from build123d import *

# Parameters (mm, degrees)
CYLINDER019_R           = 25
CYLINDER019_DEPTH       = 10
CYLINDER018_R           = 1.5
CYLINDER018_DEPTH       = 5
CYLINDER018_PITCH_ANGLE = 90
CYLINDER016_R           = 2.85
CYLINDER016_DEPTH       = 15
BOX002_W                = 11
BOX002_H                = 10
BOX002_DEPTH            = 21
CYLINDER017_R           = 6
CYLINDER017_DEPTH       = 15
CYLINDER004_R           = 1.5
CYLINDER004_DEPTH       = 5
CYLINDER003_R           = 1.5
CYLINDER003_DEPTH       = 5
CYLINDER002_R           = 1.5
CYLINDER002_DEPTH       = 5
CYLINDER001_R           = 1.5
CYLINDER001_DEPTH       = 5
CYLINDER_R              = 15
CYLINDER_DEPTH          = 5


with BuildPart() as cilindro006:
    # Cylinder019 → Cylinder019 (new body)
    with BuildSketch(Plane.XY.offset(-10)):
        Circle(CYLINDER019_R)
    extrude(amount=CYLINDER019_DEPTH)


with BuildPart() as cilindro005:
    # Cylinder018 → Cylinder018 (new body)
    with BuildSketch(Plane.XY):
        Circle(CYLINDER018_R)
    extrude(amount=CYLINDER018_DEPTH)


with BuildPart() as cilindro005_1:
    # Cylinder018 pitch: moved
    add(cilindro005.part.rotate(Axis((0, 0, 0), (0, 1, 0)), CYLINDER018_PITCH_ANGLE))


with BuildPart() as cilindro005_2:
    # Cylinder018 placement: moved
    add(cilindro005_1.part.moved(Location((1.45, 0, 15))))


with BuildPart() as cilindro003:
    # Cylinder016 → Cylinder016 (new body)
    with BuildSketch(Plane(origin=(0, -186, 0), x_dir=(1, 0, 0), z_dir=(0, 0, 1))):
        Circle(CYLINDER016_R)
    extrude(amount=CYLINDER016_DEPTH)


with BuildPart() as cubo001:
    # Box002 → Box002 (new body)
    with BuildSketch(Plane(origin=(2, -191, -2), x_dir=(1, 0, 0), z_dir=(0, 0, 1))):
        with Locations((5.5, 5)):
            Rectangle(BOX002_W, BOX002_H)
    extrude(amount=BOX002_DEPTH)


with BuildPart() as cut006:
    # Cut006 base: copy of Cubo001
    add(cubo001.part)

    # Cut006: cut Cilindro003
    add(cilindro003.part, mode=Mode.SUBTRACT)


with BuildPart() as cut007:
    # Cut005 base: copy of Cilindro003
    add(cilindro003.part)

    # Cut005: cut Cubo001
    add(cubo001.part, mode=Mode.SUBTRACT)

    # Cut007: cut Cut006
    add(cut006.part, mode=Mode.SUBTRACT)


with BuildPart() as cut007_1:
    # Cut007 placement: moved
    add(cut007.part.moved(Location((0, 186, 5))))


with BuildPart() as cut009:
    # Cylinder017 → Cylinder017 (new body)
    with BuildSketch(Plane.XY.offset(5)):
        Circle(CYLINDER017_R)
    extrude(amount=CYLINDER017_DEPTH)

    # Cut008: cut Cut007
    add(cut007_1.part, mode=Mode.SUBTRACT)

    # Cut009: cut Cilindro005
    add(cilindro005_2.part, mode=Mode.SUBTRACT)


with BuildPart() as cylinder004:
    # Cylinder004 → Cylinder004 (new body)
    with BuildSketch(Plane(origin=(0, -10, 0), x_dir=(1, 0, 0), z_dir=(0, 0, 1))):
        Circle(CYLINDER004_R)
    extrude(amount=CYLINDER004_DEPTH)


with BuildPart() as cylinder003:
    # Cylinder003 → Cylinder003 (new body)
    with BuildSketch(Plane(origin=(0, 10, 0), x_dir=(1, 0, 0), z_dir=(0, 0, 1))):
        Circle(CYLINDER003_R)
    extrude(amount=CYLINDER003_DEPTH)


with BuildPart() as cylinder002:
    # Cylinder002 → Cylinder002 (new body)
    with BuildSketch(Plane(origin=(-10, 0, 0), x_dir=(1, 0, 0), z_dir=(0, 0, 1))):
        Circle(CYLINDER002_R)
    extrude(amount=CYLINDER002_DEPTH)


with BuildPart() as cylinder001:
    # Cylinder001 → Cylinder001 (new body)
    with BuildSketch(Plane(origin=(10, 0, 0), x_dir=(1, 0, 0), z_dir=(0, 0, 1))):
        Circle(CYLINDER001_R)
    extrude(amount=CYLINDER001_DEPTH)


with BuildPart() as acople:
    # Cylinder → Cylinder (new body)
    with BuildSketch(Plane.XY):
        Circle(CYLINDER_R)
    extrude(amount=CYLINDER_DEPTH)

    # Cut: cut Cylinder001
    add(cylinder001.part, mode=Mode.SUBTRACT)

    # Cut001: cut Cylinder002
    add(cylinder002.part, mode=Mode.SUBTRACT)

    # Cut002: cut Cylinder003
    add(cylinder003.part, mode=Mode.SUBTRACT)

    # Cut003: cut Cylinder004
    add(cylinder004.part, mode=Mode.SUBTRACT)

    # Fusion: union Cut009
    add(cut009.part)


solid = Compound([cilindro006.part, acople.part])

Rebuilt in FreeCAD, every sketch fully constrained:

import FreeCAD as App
import Part
import Sketcher
Q = App.Units.Quantity

doc = App.newDocument("Part")
body = doc.addObject("PartDesign::Body", "Body")

sketch1 = doc.addObject("Sketcher::SketchObject", "Sketch")
body.addObject(sketch1)
sketch1.AttachmentSupport = (doc.XY_Plane, [""])
sketch1.MapMode = "FlatFace"
sketch1.AttachmentOffset = App.Placement(App.Vector(0, 0, -10), App.Rotation())
sketch1.addGeometry(Part.Circle(App.Vector(0, 0, 0), App.Vector(0, 0, 1), 25), False)
sketch1.addConstraint(Sketcher.Constraint("Coincident", 0, 3, -1, 1))
sketch1.addConstraint(Sketcher.Constraint("Diameter", 0, Q("50 mm")))
pad1 = doc.addObject("PartDesign::Pad", "Pad")
body.addObject(pad1)
pad1.Profile = sketch1
pad1.Length = 10
body2 = doc.addObject("PartDesign::Body", "Body001")

sketch2 = doc.addObject("Sketcher::SketchObject", "Sketch001")
body2.addObject(sketch2)
sketch2.AttachmentSupport = (doc.getObject("XY_Plane001"), [""])
sketch2.MapMode = "FlatFace"
sketch2.addGeometry(Part.Circle(App.Vector(0, 0, 0), App.Vector(0, 0, 1), 1.5), False)
sketch2.addConstraint(Sketcher.Constraint("Coincident", 0, 3, -1, 1))
sketch2.addConstraint(Sketcher.Constraint("Diameter", 0, Q("3 mm")))
pad2 = doc.addObject("PartDesign::Pad", "Pad001")
body2.addObject(pad2)
pad2.Profile = sketch2
pad2.Length = 5
body3 = doc.addObject("PartDesign::Body", "Body002")
doc.recompute()

body2.Placement = App.Placement(App.Vector(0, 0, 0), App.Rotation(App.Vector(0, 1, 0), 90))
boolean = doc.addObject("PartDesign::Boolean", "Boolean")
body3.addObject(boolean)
boolean.Type = "Fuse"
boolean.addObjects([body2])
body4 = doc.addObject("PartDesign::Body", "Body003")
doc.recompute()

body3.Placement = App.Placement(App.Vector(1.45, 0, 15), App.Rotation(App.Vector(0, 0, 1), 0))
boolean2 = doc.addObject("PartDesign::Boolean", "Boolean001")
body4.addObject(boolean2)
boolean2.Type = "Fuse"
boolean2.addObjects([body3])
body5 = doc.addObject("PartDesign::Body", "Body004")

sketch3 = doc.addObject("Sketcher::SketchObject", "Sketch002")
body5.addObject(sketch3)
sketch3.AttachmentSupport = (doc.getObject("XY_Plane004"), [""])
sketch3.MapMode = "FlatFace"
sketch3.addGeometry(Part.Circle(App.Vector(0, -186, 0), App.Vector(0, 0, 1), 2.9), False)
sketch3.addConstraint(Sketcher.Constraint("PointOnObject", 0, 3, -2))
sketch3.addConstraint(Sketcher.Constraint("Diameter", 0, Q("5.7 mm")))
sketch3.addConstraint(Sketcher.Constraint("DistanceY", 0, 3, -1, 1, Q("186 mm")))
pad3 = doc.addObject("PartDesign::Pad", "Pad002")
body5.addObject(pad3)
pad3.Profile = sketch3
pad3.Length = 15
body6 = doc.addObject("PartDesign::Body", "Body005")

sketch4 = doc.addObject("Sketcher::SketchObject", "Sketch003")
body6.addObject(sketch4)
sketch4.AttachmentSupport = (doc.getObject("XY_Plane005"), [""])
sketch4.MapMode = "FlatFace"
sketch4.AttachmentOffset = App.Placement(App.Vector(0, 0, -2), App.Rotation())
sketch4.addGeometry(Part.LineSegment(App.Vector(2, -181, 0), App.Vector(2, -191, 0)), False)
sketch4.addGeometry(Part.LineSegment(App.Vector(2, -191, 0), App.Vector(13, -191, 0)), False)
sketch4.addGeometry(Part.LineSegment(App.Vector(13, -191, 0), App.Vector(13, -181, 0)), False)
sketch4.addGeometry(Part.LineSegment(App.Vector(13, -181, 0), App.Vector(2, -181, 0)), False)
sketch4.addConstraint(Sketcher.Constraint("Coincident", 0, 2, 1, 1))
sketch4.addConstraint(Sketcher.Constraint("Coincident", 1, 2, 2, 1))
sketch4.addConstraint(Sketcher.Constraint("Coincident", 2, 2, 3, 1))
sketch4.addConstraint(Sketcher.Constraint("Coincident", 3, 2, 0, 1))
sketch4.addConstraint(Sketcher.Constraint("Vertical", 0))
sketch4.addConstraint(Sketcher.Constraint("Horizontal", 1))
sketch4.addConstraint(Sketcher.Constraint("Vertical", 2))
sketch4.addConstraint(Sketcher.Constraint("Horizontal", 3))
sketch4.addConstraint(Sketcher.Constraint("DistanceX", 1, 1, 1, 2, Q("11 mm")))
sketch4.addConstraint(Sketcher.Constraint("DistanceY", 0, 2, 0, 1, Q("10 mm")))
sketch4.addConstraint(Sketcher.Constraint("DistanceX", -1, 1, 0, 2, Q("2 mm")))
sketch4.addConstraint(Sketcher.Constraint("DistanceY", 0, 2, -1, 1, Q("191 mm")))
pad4 = doc.addObject("PartDesign::Pad", "Pad003")
body6.addObject(pad4)
pad4.Profile = sketch4
pad4.Length = 21
body7 = doc.addObject("PartDesign::Body", "Body006")
doc.recompute()

body7.BaseFeature = body6
doc.recompute()

body8 = doc.addObject("PartDesign::Body", "Body007")
body8.BaseFeature = body5
boolean3 = doc.addObject("PartDesign::Boolean", "Boolean002")
body7.addObject(boolean3)
boolean3.Type = "Cut"
boolean3.addObjects([body8])
doc.recompute()

boolean4 = doc.addObject("PartDesign::Boolean", "Boolean003")
body5.addObject(boolean4)
boolean4.Type = "Cut"
boolean4.addObjects([body6])
doc.recompute()

boolean5 = doc.addObject("PartDesign::Boolean", "Boolean004")
body5.addObject(boolean5)
boolean5.Type = "Cut"
boolean5.addObjects([body7])
body9 = doc.addObject("PartDesign::Body", "Body008")
doc.recompute()

body5.Placement = App.Placement(App.Vector(0, 186, 5), App.Rotation(App.Vector(0, 0, 1), 0))
boolean6 = doc.addObject("PartDesign::Boolean", "Boolean005")
body9.addObject(boolean6)
boolean6.Type = "Fuse"
boolean6.addObjects([body5])
body10 = doc.addObject("PartDesign::Body", "Body009")

sketch5 = doc.addObject("Sketcher::SketchObject", "Sketch004")
body10.addObject(sketch5)
sketch5.AttachmentSupport = (doc.getObject("XY_Plane009"), [""])
sketch5.MapMode = "FlatFace"
sketch5.AttachmentOffset = App.Placement(App.Vector(0, 0, 5), App.Rotation())
sketch5.addGeometry(Part.Circle(App.Vector(0, 0, 0), App.Vector(0, 0, 1), 6), False)
sketch5.addConstraint(Sketcher.Constraint("Coincident", 0, 3, -1, 1))
sketch5.addConstraint(Sketcher.Constraint("Diameter", 0, Q("12 mm")))
pad5 = doc.addObject("PartDesign::Pad", "Pad004")
body10.addObject(pad5)
pad5.Profile = sketch5
pad5.Length = 15
doc.recompute()

boolean7 = doc.addObject("PartDesign::Boolean", "Boolean006")
body10.addObject(boolean7)
boolean7.Type = "Cut"
boolean7.addObjects([body9])
doc.recompute()

boolean8 = doc.addObject("PartDesign::Boolean", "Boolean007")
body10.addObject(boolean8)
boolean8.Type = "Cut"
boolean8.addObjects([body4])
body11 = doc.addObject("PartDesign::Body", "Body010")

sketch6 = doc.addObject("Sketcher::SketchObject", "Sketch005")
body11.addObject(sketch6)
sketch6.AttachmentSupport = (doc.getObject("XY_Plane010"), [""])
sketch6.MapMode = "FlatFace"
sketch6.addGeometry(Part.Circle(App.Vector(0, -10, 0), App.Vector(0, 0, 1), 1.5), False)
sketch6.addConstraint(Sketcher.Constraint("PointOnObject", 0, 3, -2))
sketch6.addConstraint(Sketcher.Constraint("Diameter", 0, Q("3 mm")))
sketch6.addConstraint(Sketcher.Constraint("DistanceY", 0, 3, -1, 1, Q("10 mm")))
pad6 = doc.addObject("PartDesign::Pad", "Pad005")
body11.addObject(pad6)
pad6.Profile = sketch6
pad6.Length = 5
body12 = doc.addObject("PartDesign::Body", "Body011")

sketch7 = doc.addObject("Sketcher::SketchObject", "Sketch006")
body12.addObject(sketch7)
sketch7.AttachmentSupport = (doc.getObject("XY_Plane011"), [""])
sketch7.MapMode = "FlatFace"
sketch7.addGeometry(Part.Circle(App.Vector(0, 10, 0), App.Vector(0, 0, 1), 1.5), False)
sketch7.addConstraint(Sketcher.Constraint("PointOnObject", 0, 3, -2))
sketch7.addConstraint(Sketcher.Constraint("Diameter", 0, Q("3 mm")))
sketch7.addConstraint(Sketcher.Constraint("DistanceY", -1, 1, 0, 3, Q("10 mm")))
pad7 = doc.addObject("PartDesign::Pad", "Pad006")
body12.addObject(pad7)
pad7.Profile = sketch7
pad7.Length = 5
body13 = doc.addObject("PartDesign::Body", "Body012")

sketch8 = doc.addObject("Sketcher::SketchObject", "Sketch007")
body13.addObject(sketch8)
sketch8.AttachmentSupport = (doc.getObject("XY_Plane012"), [""])
sketch8.MapMode = "FlatFace"
sketch8.addGeometry(Part.Circle(App.Vector(-10, 0, 0), App.Vector(0, 0, 1), 1.5), False)
sketch8.addConstraint(Sketcher.Constraint("PointOnObject", 0, 3, -1))
sketch8.addConstraint(Sketcher.Constraint("Diameter", 0, Q("3 mm")))
sketch8.addConstraint(Sketcher.Constraint("DistanceX", 0, 3, -1, 1, Q("10 mm")))
pad8 = doc.addObject("PartDesign::Pad", "Pad007")
body13.addObject(pad8)
pad8.Profile = sketch8
pad8.Length = 5
body14 = doc.addObject("PartDesign::Body", "Body013")

sketch9 = doc.addObject("Sketcher::SketchObject", "Sketch008")
body14.addObject(sketch9)
sketch9.AttachmentSupport = (doc.getObject("XY_Plane013"), [""])
sketch9.MapMode = "FlatFace"
sketch9.addGeometry(Part.Circle(App.Vector(10, 0, 0), App.Vector(0, 0, 1), 1.5), False)
sketch9.addConstraint(Sketcher.Constraint("PointOnObject", 0, 3, -1))
sketch9.addConstraint(Sketcher.Constraint("Diameter", 0, Q("3 mm")))
sketch9.addConstraint(Sketcher.Constraint("DistanceX", -1, 1, 0, 3, Q("10 mm")))
pad9 = doc.addObject("PartDesign::Pad", "Pad008")
body14.addObject(pad9)
pad9.Profile = sketch9
pad9.Length = 5
body15 = doc.addObject("PartDesign::Body", "Body014")

sketch10 = doc.addObject("Sketcher::SketchObject", "Sketch009")
body15.addObject(sketch10)
sketch10.AttachmentSupport = (doc.getObject("XY_Plane014"), [""])
sketch10.MapMode = "FlatFace"
sketch10.addGeometry(Part.Circle(App.Vector(0, 0, 0), App.Vector(0, 0, 1), 15), False)
sketch10.addConstraint(Sketcher.Constraint("Coincident", 0, 3, -1, 1))
sketch10.addConstraint(Sketcher.Constraint("Diameter", 0, Q("30 mm")))
pad10 = doc.addObject("PartDesign::Pad", "Pad009")
body15.addObject(pad10)
pad10.Profile = sketch10
pad10.Length = 5
doc.recompute()

boolean9 = doc.addObject("PartDesign::Boolean", "Boolean008")
body15.addObject(boolean9)
boolean9.Type = "Cut"
boolean9.addObjects([body14])
doc.recompute()

boolean10 = doc.addObject("PartDesign::Boolean", "Boolean009")
body15.addObject(boolean10)
boolean10.Type = "Cut"
boolean10.addObjects([body13])
doc.recompute()

boolean11 = doc.addObject("PartDesign::Boolean", "Boolean010")
body15.addObject(boolean11)
boolean11.Type = "Cut"
boolean11.addObjects([body12])
doc.recompute()

boolean12 = doc.addObject("PartDesign::Boolean", "Boolean011")
body15.addObject(boolean12)
boolean12.Type = "Cut"
boolean12.addObjects([body11])
doc.recompute()

boolean13 = doc.addObject("PartDesign::Boolean", "Boolean012")
body15.addObject(boolean13)
boolean13.Type = "Fuse"
boolean13.addObjects([body10])

doc.recompute()
